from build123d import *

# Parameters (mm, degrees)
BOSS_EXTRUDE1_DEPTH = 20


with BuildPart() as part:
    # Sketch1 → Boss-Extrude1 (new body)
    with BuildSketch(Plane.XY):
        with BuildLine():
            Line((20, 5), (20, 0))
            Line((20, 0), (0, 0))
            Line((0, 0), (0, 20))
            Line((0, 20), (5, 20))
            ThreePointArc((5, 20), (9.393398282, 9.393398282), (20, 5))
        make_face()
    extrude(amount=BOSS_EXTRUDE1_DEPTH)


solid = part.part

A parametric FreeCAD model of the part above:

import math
import FreeCAD as App
import Part
import Sketcher
from FreeCAD import Vector

doc = App.newDocument("Part")
body = doc.addObject("PartDesign::Body", "Body")

# Sketch on XY plane
sketch1 = doc.addObject("Sketcher::SketchObject", "Sketch")
body.addObject(sketch1)
sketch1.AttachmentSupport = (doc.XY_Plane, [""])
sketch1.MapMode = "FlatFace"
sketch1.addGeometry([
    Part.LineSegment(Vector(20, 0, 0), Vector(20, 5, 0)),  # 0
    Part.ArcOfCircle(Part.Circle(Vector(20, 20, 0), Vector(0, 0, 1), 15), math.radians(180), math.radians(270)),  # 1
    Part.LineSegment(Vector(5, 20, 0), Vector(0, 20, 0)),  # 2
    Part.LineSegment(Vector(0, 20, 0), Vector(0, 0, 0)),  # 3
    Part.LineSegment(Vector(0, 0, 0), Vector(20, 0, 0)),  # 4
], False)
sketch1.addConstraint([
    Sketcher.Constraint("Coincident", 0, 2, 1, 2),
    Sketcher.Constraint("Coincident", 1, 1, 2, 1),
    Sketcher.Constraint("Coincident", 2, 2, 3, 1),
    Sketcher.Constraint("Coincident", 3, 2, 4, 1),
    Sketcher.Constraint("Coincident", 4, 2, 0, 1),
    Sketcher.Constraint("Vertical", 0),
    Sketcher.Constraint("Horizontal", 2),
    Sketcher.Constraint("Vertical", 3),
    Sketcher.Constraint("Horizontal", 4),
    Sketcher.Constraint("Coincident", 3, 2, -1, 1),
    Sketcher.Constraint("Vertical", 1, 3, 0, 2),
    Sketcher.Constraint("Equal", 2, 0),
    Sketcher.Constraint("Equal", 4, 3),
    Sketcher.Constraint("Radius", 1, 15.0),
    Sketcher.Constraint("DistanceX", 2, 2, 2, 1, 5.0),
])
pad1 = doc.addObject("PartDesign::Pad", "Pad")
body.addObject(pad1)
pad1.Profile = sketch1
pad1.Length = 20

doc.recompute()
